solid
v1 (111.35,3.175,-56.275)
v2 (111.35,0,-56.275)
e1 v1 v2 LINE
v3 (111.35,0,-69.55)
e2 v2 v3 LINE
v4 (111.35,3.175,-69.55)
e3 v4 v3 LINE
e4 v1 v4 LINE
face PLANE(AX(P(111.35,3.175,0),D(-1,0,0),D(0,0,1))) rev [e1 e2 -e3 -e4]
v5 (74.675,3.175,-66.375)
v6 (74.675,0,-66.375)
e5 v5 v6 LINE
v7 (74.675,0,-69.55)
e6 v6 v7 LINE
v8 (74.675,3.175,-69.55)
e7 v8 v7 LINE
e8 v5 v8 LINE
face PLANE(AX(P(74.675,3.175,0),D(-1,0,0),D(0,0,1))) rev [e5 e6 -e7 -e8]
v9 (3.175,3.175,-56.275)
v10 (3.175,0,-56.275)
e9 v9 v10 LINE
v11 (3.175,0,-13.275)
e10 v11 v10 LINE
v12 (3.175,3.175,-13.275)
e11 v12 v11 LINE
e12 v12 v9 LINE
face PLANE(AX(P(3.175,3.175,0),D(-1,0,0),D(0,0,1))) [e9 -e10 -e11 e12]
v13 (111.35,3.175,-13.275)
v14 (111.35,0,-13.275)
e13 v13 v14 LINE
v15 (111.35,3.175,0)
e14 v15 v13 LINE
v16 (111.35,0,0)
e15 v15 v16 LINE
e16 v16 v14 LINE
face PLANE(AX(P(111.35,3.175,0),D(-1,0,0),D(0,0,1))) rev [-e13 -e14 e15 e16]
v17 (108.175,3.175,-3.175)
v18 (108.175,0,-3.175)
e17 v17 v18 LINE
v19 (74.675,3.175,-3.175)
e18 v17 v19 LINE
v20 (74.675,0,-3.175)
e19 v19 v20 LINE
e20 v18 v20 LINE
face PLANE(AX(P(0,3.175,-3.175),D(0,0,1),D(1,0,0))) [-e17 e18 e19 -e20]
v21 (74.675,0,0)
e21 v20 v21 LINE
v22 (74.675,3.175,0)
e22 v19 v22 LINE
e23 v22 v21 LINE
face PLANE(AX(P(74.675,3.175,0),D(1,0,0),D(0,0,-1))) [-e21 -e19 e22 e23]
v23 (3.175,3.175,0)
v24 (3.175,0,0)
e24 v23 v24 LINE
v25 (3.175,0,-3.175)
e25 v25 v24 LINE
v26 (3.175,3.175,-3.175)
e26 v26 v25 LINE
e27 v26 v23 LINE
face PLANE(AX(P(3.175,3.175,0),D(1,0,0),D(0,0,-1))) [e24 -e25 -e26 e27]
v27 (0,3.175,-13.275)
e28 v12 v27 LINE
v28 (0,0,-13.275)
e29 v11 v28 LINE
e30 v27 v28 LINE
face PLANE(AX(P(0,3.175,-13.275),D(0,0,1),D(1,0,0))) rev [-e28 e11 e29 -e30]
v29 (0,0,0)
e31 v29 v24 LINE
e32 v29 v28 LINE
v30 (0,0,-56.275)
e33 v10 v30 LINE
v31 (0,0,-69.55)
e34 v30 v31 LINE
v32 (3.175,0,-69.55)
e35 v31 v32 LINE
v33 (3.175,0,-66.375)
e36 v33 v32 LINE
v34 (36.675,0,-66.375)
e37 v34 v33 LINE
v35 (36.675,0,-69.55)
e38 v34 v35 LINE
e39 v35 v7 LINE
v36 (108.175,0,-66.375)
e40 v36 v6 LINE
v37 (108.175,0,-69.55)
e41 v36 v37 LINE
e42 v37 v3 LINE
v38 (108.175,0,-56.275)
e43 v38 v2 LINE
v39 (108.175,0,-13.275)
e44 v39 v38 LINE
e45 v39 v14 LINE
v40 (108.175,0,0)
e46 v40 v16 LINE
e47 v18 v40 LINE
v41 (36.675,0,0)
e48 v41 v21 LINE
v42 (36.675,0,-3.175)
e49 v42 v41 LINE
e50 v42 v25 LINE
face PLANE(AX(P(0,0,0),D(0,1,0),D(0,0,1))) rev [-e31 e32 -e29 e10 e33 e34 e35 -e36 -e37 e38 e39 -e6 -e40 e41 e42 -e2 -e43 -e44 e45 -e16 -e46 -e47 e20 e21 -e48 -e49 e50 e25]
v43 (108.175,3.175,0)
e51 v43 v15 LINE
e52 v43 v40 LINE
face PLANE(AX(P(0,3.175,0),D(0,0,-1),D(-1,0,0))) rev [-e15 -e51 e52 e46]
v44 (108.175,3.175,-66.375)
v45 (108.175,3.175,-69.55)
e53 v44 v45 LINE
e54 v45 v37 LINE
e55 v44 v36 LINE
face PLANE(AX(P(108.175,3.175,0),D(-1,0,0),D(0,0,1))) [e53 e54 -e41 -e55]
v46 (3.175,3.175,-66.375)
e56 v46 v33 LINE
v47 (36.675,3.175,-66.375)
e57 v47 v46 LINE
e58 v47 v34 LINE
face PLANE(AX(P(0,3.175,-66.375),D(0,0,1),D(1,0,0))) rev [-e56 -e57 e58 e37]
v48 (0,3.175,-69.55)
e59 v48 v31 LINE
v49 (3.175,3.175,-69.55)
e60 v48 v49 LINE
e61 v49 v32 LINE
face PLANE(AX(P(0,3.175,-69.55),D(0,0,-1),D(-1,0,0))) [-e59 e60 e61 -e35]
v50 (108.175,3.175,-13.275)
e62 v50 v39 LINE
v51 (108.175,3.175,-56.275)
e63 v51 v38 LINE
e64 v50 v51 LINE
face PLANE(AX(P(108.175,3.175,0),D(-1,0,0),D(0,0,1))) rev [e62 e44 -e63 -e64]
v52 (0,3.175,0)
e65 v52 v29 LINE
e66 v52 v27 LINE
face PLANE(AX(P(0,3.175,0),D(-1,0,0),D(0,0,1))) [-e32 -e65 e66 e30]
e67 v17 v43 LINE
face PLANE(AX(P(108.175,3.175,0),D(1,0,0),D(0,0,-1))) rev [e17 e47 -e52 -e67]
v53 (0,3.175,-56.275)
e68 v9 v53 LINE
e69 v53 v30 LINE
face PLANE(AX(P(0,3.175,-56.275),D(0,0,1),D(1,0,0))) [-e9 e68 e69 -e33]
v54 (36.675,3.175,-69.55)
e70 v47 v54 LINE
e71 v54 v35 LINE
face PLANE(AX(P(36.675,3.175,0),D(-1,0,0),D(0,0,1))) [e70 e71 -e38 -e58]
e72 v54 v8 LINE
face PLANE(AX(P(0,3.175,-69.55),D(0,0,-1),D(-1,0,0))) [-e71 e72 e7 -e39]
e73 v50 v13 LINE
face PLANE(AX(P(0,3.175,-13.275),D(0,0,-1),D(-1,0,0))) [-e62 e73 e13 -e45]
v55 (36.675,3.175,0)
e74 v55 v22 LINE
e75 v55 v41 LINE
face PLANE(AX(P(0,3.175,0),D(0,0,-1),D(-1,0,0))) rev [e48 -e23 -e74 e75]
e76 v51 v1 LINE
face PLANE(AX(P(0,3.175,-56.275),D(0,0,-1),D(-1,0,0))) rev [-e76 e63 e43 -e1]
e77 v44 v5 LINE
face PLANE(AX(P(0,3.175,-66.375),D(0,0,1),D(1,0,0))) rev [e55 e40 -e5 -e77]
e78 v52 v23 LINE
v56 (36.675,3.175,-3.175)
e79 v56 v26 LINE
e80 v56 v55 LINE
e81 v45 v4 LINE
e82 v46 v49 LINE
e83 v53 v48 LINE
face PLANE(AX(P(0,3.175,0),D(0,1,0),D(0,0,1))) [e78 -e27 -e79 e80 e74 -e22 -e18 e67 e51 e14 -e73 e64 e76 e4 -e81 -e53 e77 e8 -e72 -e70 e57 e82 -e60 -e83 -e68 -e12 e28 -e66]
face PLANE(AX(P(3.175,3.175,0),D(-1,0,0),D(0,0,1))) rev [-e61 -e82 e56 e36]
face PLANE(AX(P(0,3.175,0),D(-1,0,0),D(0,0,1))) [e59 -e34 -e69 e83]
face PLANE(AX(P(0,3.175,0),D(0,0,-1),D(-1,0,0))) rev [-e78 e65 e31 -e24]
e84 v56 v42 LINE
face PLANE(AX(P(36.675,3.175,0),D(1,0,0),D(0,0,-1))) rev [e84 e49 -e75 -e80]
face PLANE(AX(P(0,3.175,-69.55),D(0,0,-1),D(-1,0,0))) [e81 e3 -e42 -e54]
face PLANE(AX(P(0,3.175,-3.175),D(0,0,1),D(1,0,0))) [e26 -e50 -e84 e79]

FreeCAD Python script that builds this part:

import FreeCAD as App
import Part
import Sketcher
from FreeCAD import Vector
Q = App.Units.Quantity


def add_polygon(sketch, points):
    """Adds a closed chain of lines whose ends are joined by coincident constraints."""
    first, n = sketch.GeometryCount, len(points)
    for a, b in zip(points, points[1:] + points[:1]):
        sketch.addGeometry(Part.LineSegment(App.Vector(*a, 0), App.Vector(*b, 0)), False)
    for i in range(n):
        sketch.addConstraint(Sketcher.Constraint("Coincident", first + i, 2, first + (i + 1) % n, 1))

doc = App.newDocument("Part")
body = doc.addObject("PartDesign::Body", "Body")

# Sketch on XZ plane
sketch1 = doc.addObject("Sketcher::SketchObject", "Sketch")
body.addObject(sketch1)
sketch1.AttachmentSupport = (doc.XZ_Plane, [""])
sketch1.MapMode = "FlatFace"
add_polygon(sketch1, [(0, -13.3), (0, 0), (3.2, 0), (3.2, -3.2), (36.7, -3.2), (36.7, 0), (74.7, 0), (74.7, -3.2), (108.2, -3.2), (108.2, 0), (111.3, 0), (111.3, -13.3), (108.2, -13.3), (108.2, -56.3), (111.3, -56.3), (111.3, -69.5), (108.2, -69.5), (108.2, -66.4), (74.7, -66.4), (74.7, -69.5), (36.7, -69.5), (36.7, -66.4), (3.2, -66.4), (3.2, -69.5), (0, -69.5), (0, -56.3), (3.2, -56.3), (3.2, -13.3)])  # lines 0-27
sketch1.addConstraint([
    Sketcher.Constraint("Vertical", 0),
    Sketcher.Constraint("Horizontal", 1),
    Sketcher.Constraint("Vertical", 2),
    Sketcher.Constraint("Horizontal", 3),
    Sketcher.Constraint("Vertical", 4),
    Sketcher.Constraint("Horizontal", 5),
    Sketcher.Constraint("Vertical", 6),
    Sketcher.Constraint("Horizontal", 7),
    Sketcher.Constraint("Vertical", 8),
    Sketcher.Constraint("Horizontal", 9),
    Sketcher.Constraint("Vertical", 10),
    Sketcher.Constraint("Horizontal", 11),
    Sketcher.Constraint("Vertical", 12),
    Sketcher.Constraint("Horizontal", 13),
    Sketcher.Constraint("Vertical", 14),
    Sketcher.Constraint("Horizontal", 15),
    Sketcher.Constraint("Vertical", 16),
    Sketcher.Constraint("Horizontal", 17),
    Sketcher.Constraint("Vertical", 18),
    Sketcher.Constraint("Horizontal", 19),
    Sketcher.Constraint("Vertical", 20),
    Sketcher.Constraint("Horizontal", 21),
    Sketcher.Constraint("Vertical", 22),
    Sketcher.Constraint("Horizontal", 23),
    Sketcher.Constraint("Vertical", 24),
    Sketcher.Constraint("Horizontal", 25),
    Sketcher.Constraint("Vertical", 26),
    Sketcher.Constraint("Horizontal", 27),
    Sketcher.Constraint("Coincident", 0, 2, -1, 1),
    Sketcher.Constraint("PointOnObject", 4, 2, -1),
    Sketcher.Constraint("PointOnObject", 8, 2, -1),
    Sketcher.Constraint("PointOnObject", 23, 2, -2),
    Sketcher.Constraint("Horizontal", 3, 2, 6, 2),
    Sketcher.Constraint("Horizontal", 15, 2, 18, 2),
    Sketcher.Constraint("Horizontal", 17, 2, 20, 2),
    Sketcher.Constraint("Horizontal", 19, 2, 22, 2),
    Sketcher.Constraint("Horizontal", 13, 2, 24, 2),
    Sketcher.Constraint("Horizontal", 11, 2, 26, 2),
    Sketcher.Constraint("Vertical", 8, 2, 11, 2),
    Sketcher.Constraint("Vertical", 10, 2, 13, 2),
    Sketcher.Constraint("Vertical", 12, 2, 15, 2),
    Sketcher.Constraint("Vertical", 6, 2, 17, 2),
    Sketcher.Constraint("Vertical", 4, 2, 19, 2),
    Sketcher.Constraint("Vertical", 2, 2, 21, 2),
    Sketcher.Constraint("Vertical", 22, 2, 25, 2),
    Sketcher.Constraint("Equal", 3, 7),
    Sketcher.Constraint("Equal", 1, 9),
    Sketcher.Constraint("Equal", 27, 2),
    Sketcher.Constraint("Equal", 10, 14),
    Sketcher.Constraint("Equal", 8, 16),
    Sketcher.Constraint("DistanceX", 5, 1, 5, 2, Q("38 mm")),
    Sketcher.Constraint("DistanceY", 12, 2, 12, 1, Q("43 mm")),
    Sketcher.Constraint("DistanceX", 3, 1, 3, 2, Q("33.5 mm")),
    Sketcher.Constraint("DistanceY", 10, 2, 7, 2, Q("10.1 mm")),
    Sketcher.Constraint("DistanceX", 1, 1, 1, 2, Q("3.175 mm")),
])
pad1 = doc.addObject("PartDesign::Pad", "Pad")
body.addObject(pad1)
pad1.Profile = sketch1
pad1.Length = 3.175
pad1.Reversed = True

doc.recompute()
